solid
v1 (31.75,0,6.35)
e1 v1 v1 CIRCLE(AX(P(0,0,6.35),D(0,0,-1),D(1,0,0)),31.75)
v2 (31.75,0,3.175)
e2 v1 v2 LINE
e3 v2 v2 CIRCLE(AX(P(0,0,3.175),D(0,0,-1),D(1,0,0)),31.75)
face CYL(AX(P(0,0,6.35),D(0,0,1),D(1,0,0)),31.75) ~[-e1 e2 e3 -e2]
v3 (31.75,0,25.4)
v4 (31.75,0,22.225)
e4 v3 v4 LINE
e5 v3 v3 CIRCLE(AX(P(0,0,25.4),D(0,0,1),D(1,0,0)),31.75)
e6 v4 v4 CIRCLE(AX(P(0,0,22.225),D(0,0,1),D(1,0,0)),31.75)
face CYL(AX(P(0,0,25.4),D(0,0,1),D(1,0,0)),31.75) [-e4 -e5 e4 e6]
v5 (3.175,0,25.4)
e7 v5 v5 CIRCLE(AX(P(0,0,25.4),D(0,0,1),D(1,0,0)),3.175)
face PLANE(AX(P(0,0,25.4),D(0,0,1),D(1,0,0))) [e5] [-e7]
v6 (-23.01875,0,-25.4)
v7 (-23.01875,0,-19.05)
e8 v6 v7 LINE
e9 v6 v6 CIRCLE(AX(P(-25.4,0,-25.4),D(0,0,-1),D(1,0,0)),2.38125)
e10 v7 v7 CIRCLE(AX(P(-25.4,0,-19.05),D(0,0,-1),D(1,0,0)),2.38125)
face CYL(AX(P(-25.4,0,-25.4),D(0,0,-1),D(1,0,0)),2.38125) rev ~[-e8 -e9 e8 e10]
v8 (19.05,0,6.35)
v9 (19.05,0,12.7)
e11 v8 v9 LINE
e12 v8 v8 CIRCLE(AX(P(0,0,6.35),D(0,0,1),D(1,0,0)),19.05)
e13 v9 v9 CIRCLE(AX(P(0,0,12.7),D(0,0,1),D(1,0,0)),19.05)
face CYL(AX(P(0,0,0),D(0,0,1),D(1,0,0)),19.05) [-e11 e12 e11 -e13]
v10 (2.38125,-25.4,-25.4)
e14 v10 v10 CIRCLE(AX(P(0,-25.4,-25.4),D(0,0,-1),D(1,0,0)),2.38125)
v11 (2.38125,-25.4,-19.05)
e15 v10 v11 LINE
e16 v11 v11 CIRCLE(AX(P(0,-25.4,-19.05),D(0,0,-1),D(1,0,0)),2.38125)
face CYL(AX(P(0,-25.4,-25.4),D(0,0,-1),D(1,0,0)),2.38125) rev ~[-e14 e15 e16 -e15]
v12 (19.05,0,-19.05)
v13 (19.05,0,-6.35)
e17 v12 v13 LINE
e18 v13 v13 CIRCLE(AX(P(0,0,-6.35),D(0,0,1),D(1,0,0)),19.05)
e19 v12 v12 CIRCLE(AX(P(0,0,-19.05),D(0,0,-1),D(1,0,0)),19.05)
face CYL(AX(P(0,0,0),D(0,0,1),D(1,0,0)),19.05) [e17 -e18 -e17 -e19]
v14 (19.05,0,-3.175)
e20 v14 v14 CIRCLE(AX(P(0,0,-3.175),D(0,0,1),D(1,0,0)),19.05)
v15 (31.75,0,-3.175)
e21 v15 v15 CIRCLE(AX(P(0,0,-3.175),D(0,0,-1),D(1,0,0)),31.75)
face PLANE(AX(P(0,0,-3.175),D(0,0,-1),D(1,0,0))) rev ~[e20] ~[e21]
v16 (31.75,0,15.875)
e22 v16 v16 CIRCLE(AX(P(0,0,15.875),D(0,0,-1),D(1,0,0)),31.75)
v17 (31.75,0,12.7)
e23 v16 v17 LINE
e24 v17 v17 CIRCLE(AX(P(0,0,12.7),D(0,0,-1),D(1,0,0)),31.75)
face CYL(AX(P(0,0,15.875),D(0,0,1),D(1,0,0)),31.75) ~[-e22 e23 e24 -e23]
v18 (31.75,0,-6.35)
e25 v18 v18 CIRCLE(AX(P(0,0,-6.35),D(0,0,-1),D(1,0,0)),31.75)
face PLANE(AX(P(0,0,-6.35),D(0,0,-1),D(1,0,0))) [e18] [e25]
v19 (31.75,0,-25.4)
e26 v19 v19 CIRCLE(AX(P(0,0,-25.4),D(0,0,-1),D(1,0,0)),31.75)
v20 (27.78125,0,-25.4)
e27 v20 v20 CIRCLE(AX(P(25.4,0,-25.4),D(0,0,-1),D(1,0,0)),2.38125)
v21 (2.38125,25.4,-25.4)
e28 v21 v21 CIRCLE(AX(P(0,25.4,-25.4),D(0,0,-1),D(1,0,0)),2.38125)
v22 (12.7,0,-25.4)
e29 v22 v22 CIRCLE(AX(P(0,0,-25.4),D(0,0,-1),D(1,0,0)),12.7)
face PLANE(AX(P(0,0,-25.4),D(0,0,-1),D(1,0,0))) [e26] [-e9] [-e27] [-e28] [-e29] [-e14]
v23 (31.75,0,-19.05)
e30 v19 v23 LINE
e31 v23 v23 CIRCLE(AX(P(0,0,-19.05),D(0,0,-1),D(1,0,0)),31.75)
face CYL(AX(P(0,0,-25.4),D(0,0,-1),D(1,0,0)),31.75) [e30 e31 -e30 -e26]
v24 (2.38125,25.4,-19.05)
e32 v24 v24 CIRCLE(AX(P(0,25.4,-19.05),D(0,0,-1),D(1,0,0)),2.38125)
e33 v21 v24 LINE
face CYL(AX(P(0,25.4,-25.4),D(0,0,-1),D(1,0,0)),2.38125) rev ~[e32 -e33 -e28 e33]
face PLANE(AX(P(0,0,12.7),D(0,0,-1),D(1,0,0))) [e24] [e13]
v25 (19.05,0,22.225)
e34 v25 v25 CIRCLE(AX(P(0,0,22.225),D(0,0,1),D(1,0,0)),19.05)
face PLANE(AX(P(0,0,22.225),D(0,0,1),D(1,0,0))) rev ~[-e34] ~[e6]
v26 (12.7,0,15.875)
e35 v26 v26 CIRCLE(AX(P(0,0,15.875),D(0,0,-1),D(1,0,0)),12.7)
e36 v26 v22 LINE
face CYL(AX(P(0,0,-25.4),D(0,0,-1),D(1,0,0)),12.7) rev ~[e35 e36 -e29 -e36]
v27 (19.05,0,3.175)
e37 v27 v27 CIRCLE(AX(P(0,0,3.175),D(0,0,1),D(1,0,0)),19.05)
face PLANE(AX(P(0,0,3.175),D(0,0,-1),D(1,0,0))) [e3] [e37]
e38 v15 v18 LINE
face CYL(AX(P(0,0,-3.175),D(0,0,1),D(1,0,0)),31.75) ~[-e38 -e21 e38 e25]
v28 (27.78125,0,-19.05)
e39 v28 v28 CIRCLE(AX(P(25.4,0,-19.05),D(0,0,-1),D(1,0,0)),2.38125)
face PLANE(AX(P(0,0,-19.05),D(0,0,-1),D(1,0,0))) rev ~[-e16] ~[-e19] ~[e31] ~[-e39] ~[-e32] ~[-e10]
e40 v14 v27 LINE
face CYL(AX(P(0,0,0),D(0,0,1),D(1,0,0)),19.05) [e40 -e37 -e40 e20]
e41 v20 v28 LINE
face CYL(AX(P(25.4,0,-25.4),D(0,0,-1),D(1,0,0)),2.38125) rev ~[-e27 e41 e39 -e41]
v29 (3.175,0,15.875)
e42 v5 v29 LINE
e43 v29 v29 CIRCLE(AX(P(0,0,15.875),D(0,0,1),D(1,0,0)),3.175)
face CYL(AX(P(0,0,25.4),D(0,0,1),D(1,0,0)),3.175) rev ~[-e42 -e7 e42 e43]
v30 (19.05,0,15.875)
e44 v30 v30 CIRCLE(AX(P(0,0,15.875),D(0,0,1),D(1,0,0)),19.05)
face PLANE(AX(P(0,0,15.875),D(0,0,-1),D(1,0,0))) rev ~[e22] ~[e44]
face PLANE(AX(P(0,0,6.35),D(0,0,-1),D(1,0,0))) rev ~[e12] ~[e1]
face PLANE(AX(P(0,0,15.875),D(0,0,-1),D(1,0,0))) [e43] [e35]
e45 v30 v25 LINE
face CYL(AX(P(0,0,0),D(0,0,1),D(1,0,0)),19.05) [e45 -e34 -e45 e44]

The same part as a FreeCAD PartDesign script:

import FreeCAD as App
import Part
import Sketcher

V = App.Vector
Q = App.Units.Quantity

doc = App.newDocument("Part")
body = doc.addObject("PartDesign::Body", "Body")

sketch1 = doc.addObject("Sketcher::SketchObject", "Sketch")
body.addObject(sketch1)
sketch1.AttachmentSupport = (doc.XY_Plane, [""])
sketch1.MapMode = "FlatFace"
sketch1.addGeometry(Part.Circle(V(0, 0, 0), V(0, 0, 1), 19), False)
sketch1.addConstraint(Sketcher.Constraint("Coincident", 0, 3, -1, 1))
sketch1.addConstraint(Sketcher.Constraint("Diameter", 0, Q("1.5 in")))
pad1 = doc.addObject("PartDesign::Pad", "Pad")
body.addObject(pad1)
pad1.Profile = sketch1
pad1.Type = "TwoLengths"
pad1.Length = Q("1 in")
pad1.Length2 = Q("1 in")

sketch2 = doc.addObject("Sketcher::SketchObject", "Sketch001")
body.addObject(sketch2)
sketch2.AttachmentSupport = (doc.XY_Plane, [""])
sketch2.MapMode = "FlatFace"
sketch2.AttachmentOffset = App.Placement(V(0, 0, -1 * 25.4), App.Rotation())
sketch2.addGeometry(Part.Circle(V(0, 0, 0), V(0, 0, 1), 31.8), False)
sketch2.addGeometry(Part.Circle(V(0, 25.4, 0), V(0, 0, 1), 2.4), False)
sketch2.addGeometry(Part.Circle(V(-25.4, 0, 0), V(0, 0, 1), 2.4), False)
sketch2.addGeometry(Part.Circle(V(0, 0, 0), V(0, 0, 1), 19.1), False)
sketch2.addGeometry(Part.Circle(V(25.4, 0, 0), V(0, 0, 1), 2.4), False)
sketch2.addGeometry(Part.Circle(V(0, -25.4, 0), V(0, 0, 1), 2.4), False)
sketch2.addConstraint(Sketcher.Constraint("Coincident", 0, 3, -1, 1))
sketch2.addConstraint(Sketcher.Constraint("Coincident", 3, 3, -1, 1))
sketch2.addConstraint(Sketcher.Constraint("Equal", 1, 2))
sketch2.addConstraint(Sketcher.Constraint("Equal", 2, 4))
sketch2.addConstraint(Sketcher.Constraint("Equal", 4, 5))
sketch2.addConstraint(Sketcher.Constraint("Symmetric", 2, 3, 4, 3, -1, 1))
sketch2.addConstraint(Sketcher.Constraint("Symmetric", 1, 3, 5, 3, -1, 1))
sketch2.addConstraint(Sketcher.Constraint("PointOnObject", 1, 3, -2))
sketch2.addConstraint(Sketcher.Constraint("PointOnObject", 2, 3, -1))
sketch2.addConstraint(Sketcher.Constraint("Diameter", 0, Q("2.5 in")))
sketch2.addConstraint(Sketcher.Constraint("Diameter", 3, Q("1.5 in")))
sketch2.addConstraint(Sketcher.Constraint("Diameter", 1, Q("0.1875 in")))
sketch2.addConstraint(Sketcher.Constraint("DistanceY", -1, 1, 1, 3, Q("1 in")))
sketch2.addConstraint(Sketcher.Constraint("DistanceX", 2, 3, -1, 1, Q("1 in")))
pad2 = doc.addObject("PartDesign::Pad", "Pad001")
body.addObject(pad2)
pad2.Profile = sketch2
pad2.Length = Q("0.25 in")

sketch3 = doc.addObject("Sketcher::SketchObject", "Sketch002")
body.addObject(sketch3)
sketch3.AttachmentSupport = (doc.XY_Plane, [""])
sketch3.MapMode = "FlatFace"
sketch3.AttachmentOffset = App.Placement(V(0, 0, -1 * 25.4), App.Rotation())
sketch3.addGeometry(Part.Circle(V(0, 0, 0), V(0, 0, 1), 13), False)
sketch3.addConstraint(Sketcher.Constraint("Coincident", 0, 3, -1, 1))
sketch3.addConstraint(Sketcher.Constraint("Diameter", 0, Q("1 in")))
pocket1 = doc.addObject("PartDesign::Pocket", "Pocket")
body.addObject(pocket1)
pocket1.Profile = sketch3
pocket1.Length = Q("1.625 in")
pocket1.Reversed = True

sketch4 = doc.addObject("Sketcher::SketchObject", "Sketch003")
body.addObject(sketch4)
sketch4.AttachmentSupport = (doc.XY_Plane, [""])
sketch4.MapMode = "FlatFace"
sketch4.AttachmentOffset = App.Placement(V(0, 0, 1 * 25.4), App.Rotation())
sketch4.addGeometry(Part.Circle(V(0, 0, 0), V(0, 0, 1), 3.2), False)
sketch4.addConstraint(Sketcher.Constraint("Coincident", 0, 3, -1, 1))
sketch4.addConstraint(Sketcher.Constraint("Diameter", 0, Q("0.25 in")))
pocket2 = doc.addObject("PartDesign::Pocket", "Pocket001")
body.addObject(pocket2)
pocket2.Profile = sketch4
pocket2.Length = Q("0.375 in")

sketch5 = doc.addObject("Sketcher::SketchObject", "Sketch004")
body.addObject(sketch5)
sketch5.AttachmentSupport = (doc.XY_Plane, [""])
sketch5.MapMode = "FlatFace"
sketch5.AttachmentOffset = App.Placement(V(0, 0, 1 * 25.4), App.Rotation())
sketch5.addGeometry(Part.Circle(V(0, 0, 0), V(0, 0, 1), 32), False)
sketch5.addGeometry(Part.Circle(V(0, 0, 0), V(0, 0, 1), 19), False)
sketch5.addConstraint(Sketcher.Constraint("Coincident", 0, 3, -1, 1))
sketch5.addConstraint(Sketcher.Constraint("Coincident", 1, 3, -1, 1))
sketch5.addConstraint(Sketcher.Constraint("Diameter", 0, Q("2.5 in")))
sketch5.addConstraint(Sketcher.Constraint("Diameter", 1, Q("1.5 in")))
pad3 = doc.addObject("PartDesign::Pad", "Pad002")
body.addObject(pad3)
pad3.Profile = sketch5
pad3.Length = Q("0.125 in")
pad3.Reversed = True

sketch6 = doc.addObject("Sketcher::SketchObject", "Sketch005")
body.addObject(sketch6)
sketch6.AttachmentSupport = (doc.XY_Plane, [""])
sketch6.MapMode = "FlatFace"
sketch6.AttachmentOffset = App.Placement(V(0, 0, 0.625 * 25.4), App.Rotation())
sketch6.addGeometry(Part.Circle(V(0, 0, 0), V(0, 0, 1), 32), False)
sketch6.addGeometry(Part.Circle(V(0, 0, 0), V(0, 0, 1), 13), False)
sketch6.addConstraint(Sketcher.Constraint("Coincident", 0, 3, -1, 1))
sketch6.addConstraint(Sketcher.Constraint("Coincident", 1, 3, -1, 1))
sketch6.addConstraint(Sketcher.Constraint("Diameter", 1, Q("1 in")))
sketch6.addConstraint(Sketcher.Constraint("Diameter", 0, Q("2.5 in")))
pad4 = doc.addObject("PartDesign::Pad", "Pad003")
body.addObject(pad4)
pad4.Profile = sketch6
pad4.Length = Q("0.125 in")
pad4.Reversed = True

sketch7 = doc.addObject("Sketcher::SketchObject", "Sketch006")
body.addObject(sketch7)
sketch7.AttachmentSupport = (doc.XY_Plane, [""])
sketch7.MapMode = "FlatFace"
sketch7.AttachmentOffset = App.Placement(V(0, 0, 0.25 * 25.4), App.Rotation())
sketch7.addGeometry(Part.Circle(V(0, 0, 0), V(0, 0, 1), 32), False)
sketch7.addGeometry(Part.Circle(V(0, 0, 0), V(0, 0, 1), 13), False)
sketch7.addConstraint(Sketcher.Constraint("Coincident", 0, 3, -1, 1))
sketch7.addConstraint(Sketcher.Constraint("Coincident", 1, 3, -1, 1))
sketch7.addConstraint(Sketcher.Constraint("Diameter", 1, Q("1 in")))
sketch7.addConstraint(Sketcher.Constraint("Diameter", 0, Q("2.5 in")))
pad5 = doc.addObject("PartDesign::Pad", "Pad004")
body.addObject(pad5)
pad5.Profile = sketch7
pad5.Length = Q("0.125 in")
pad5.Reversed = True

sketch8 = doc.addObject("Sketcher::SketchObject", "Sketch007")
body.addObject(sketch8)
sketch8.AttachmentSupport = (doc.XY_Plane, [""])
sketch8.MapMode = "FlatFace"
sketch8.AttachmentOffset = App.Placement(V(0, 0, -0.125 * 25.4), App.Rotation())
sketch8.addGeometry(Part.Circle(V(0, 0, 0), V(0, 0, 1), 32), False)
sketch8.addGeometry(Part.Circle(V(0, 0, 0), V(0, 0, 1), 13), False)
sketch8.addConstraint(Sketcher.Constraint("Coincident", 0, 3, -1, 1))
sketch8.addConstraint(Sketcher.Constraint("Coincident", 1, 3, -1, 1))
sketch8.addConstraint(Sketcher.Constraint("Diameter", 1, Q("1 in")))
sketch8.addConstraint(Sketcher.Constraint("Diameter", 0, Q("2.5 in")))
pad6 = doc.addObject("PartDesign::Pad", "Pad005")
body.addObject(pad6)
pad6.Profile = sketch8
pad6.Length = Q("0.125 in")
pad6.Reversed = True

doc.recompute()
